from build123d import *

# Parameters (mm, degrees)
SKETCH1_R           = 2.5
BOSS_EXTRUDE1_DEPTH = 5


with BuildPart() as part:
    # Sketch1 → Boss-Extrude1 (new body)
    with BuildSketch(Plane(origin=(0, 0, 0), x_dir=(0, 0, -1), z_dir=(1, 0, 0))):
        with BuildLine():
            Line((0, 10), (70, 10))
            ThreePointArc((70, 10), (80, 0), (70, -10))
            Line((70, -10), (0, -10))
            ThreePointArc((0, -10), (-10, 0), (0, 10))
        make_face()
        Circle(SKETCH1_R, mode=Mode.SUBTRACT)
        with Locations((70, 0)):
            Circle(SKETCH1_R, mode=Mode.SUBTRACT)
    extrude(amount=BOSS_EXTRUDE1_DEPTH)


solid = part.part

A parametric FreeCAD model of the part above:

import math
import FreeCAD as App
import Part
import Sketcher

V = App.Vector

doc = App.newDocument("Part")
body = doc.addObject("PartDesign::Body", "Body")

# Sketch on YZ plane
sketch1 = body.newObject("Sketcher::SketchObject", "Sketch")
sketch1.AttachmentSupport = (doc.getObject("YZ_Plane"), [""])
sketch1.MapMode = "FlatFace"
sketch1.addGeometry([
    Part.LineSegment(V(10, -70, 0), V(10, 0, 0)),  # 0
    Part.ArcOfCircle(Part.Circle(V(0, 0, 0), V(0, 0, 1), 10), math.radians(0), math.radians(180)),  # 1
    Part.LineSegment(V(-10, 0, 0), V(-10, -70, 0)),  # 2
    Part.ArcOfCircle(Part.Circle(V(0, -70, 0), V(0, 0, 1), 10), math.radians(180), math.radians(360)),  # 3
    Part.Circle(V(0, -70, 0), V(0, 0, 1), 2.5),  # 4
    Part.Circle(V(0, 0, 0), V(0, 0, 1), 2.5),  # 5
], False)
sketch1.addConstraint([
    Sketcher.Constraint("Tangent", 0, 2, 1, 1),
    Sketcher.Constraint("Tangent", 1, 2, 2, 1),
    Sketcher.Constraint("Tangent", 2, 2, 3, 1),
    Sketcher.Constraint("Tangent", 3, 2, 0, 1),
    Sketcher.Constraint("Vertical", 0),
    Sketcher.Constraint("Vertical", 2),
    Sketcher.Constraint("Coincident", 1, 3, -1, 1),
    Sketcher.Constraint("Coincident", 5, 3, -1, 1),
    Sketcher.Constraint("Coincident", 4, 3, 3, 3),
    Sketcher.Constraint("Equal", 4, 5),
    Sketcher.Constraint("Diameter", 4, 5.0),
    Sketcher.Constraint("Radius", 1, 10.0),
    Sketcher.Constraint("DistanceY", 0, 1, 0, 2, 70.0),
])
pad1 = body.newObject("PartDesign::Pad", "Pad")
pad1.Profile = sketch1
pad1.Length = 5

doc.recompute()
